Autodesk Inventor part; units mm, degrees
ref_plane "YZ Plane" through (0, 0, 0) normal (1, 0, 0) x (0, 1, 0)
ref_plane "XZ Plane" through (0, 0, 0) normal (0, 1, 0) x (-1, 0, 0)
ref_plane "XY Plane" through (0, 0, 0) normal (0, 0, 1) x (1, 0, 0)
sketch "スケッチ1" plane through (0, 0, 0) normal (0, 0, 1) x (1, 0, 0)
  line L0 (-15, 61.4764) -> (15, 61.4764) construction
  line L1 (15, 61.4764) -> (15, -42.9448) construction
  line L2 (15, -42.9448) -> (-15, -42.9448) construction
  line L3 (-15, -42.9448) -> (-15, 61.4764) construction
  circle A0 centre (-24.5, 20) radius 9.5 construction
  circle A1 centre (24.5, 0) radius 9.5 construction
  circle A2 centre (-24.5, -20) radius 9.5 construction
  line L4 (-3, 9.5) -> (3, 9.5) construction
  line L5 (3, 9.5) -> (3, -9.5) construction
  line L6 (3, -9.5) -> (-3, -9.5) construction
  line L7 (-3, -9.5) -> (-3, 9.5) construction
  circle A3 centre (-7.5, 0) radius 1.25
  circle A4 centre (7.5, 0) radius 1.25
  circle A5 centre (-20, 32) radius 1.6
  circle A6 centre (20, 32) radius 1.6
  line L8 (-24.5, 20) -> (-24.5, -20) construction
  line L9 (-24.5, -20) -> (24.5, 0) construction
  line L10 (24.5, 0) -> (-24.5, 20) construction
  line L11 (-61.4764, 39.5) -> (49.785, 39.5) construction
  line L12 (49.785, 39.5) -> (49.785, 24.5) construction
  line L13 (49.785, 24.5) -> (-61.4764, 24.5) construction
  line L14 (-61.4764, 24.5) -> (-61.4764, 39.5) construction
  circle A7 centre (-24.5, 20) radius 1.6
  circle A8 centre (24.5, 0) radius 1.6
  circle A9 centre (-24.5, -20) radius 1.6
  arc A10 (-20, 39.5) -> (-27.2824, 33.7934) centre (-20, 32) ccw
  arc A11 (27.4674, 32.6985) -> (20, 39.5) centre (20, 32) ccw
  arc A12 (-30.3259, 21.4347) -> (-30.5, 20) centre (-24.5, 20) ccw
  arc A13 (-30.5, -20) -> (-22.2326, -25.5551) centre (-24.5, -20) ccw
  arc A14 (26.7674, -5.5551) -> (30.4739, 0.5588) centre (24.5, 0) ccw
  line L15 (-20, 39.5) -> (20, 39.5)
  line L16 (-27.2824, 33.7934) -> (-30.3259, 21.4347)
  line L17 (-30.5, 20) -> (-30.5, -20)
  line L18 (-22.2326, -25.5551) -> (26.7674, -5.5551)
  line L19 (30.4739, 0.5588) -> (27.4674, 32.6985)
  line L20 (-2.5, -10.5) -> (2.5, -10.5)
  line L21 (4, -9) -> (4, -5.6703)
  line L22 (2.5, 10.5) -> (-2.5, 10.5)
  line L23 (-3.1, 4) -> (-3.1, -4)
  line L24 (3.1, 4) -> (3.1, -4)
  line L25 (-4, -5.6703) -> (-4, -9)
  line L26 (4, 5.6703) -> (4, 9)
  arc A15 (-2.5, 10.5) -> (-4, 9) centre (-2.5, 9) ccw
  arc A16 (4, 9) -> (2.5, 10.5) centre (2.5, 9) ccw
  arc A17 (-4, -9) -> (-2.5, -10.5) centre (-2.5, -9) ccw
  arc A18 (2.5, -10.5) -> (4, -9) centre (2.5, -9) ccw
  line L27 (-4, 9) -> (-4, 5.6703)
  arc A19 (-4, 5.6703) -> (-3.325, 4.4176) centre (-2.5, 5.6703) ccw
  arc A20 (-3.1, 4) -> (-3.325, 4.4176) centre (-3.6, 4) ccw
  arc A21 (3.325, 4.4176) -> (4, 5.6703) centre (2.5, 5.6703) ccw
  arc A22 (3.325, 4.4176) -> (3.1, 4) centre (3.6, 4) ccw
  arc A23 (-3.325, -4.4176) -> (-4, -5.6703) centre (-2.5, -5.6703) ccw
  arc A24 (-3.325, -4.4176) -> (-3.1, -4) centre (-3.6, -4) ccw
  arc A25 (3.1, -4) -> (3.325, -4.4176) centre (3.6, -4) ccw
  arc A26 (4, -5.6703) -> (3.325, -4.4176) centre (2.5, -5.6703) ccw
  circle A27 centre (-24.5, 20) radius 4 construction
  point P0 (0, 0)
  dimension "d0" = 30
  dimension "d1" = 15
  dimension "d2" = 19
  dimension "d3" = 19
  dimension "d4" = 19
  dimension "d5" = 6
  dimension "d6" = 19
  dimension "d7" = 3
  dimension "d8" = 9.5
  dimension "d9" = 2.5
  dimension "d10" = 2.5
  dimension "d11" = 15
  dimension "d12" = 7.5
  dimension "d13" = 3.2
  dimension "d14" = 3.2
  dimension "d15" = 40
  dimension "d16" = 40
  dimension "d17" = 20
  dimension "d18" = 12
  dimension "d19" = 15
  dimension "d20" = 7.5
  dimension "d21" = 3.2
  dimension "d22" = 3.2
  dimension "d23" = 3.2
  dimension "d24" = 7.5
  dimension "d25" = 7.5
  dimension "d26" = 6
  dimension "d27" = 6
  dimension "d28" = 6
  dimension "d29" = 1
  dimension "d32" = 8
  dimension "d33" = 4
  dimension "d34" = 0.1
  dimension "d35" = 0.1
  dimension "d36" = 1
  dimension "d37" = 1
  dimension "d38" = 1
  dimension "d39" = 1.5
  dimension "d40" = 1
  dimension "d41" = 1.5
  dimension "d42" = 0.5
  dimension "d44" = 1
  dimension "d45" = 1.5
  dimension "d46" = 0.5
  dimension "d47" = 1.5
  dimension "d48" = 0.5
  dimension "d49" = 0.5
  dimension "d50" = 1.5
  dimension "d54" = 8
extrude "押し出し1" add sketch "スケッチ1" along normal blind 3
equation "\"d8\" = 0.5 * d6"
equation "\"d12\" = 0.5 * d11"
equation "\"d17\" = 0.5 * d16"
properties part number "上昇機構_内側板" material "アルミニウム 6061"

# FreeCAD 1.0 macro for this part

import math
import FreeCAD as App
import Part
import Sketcher
from FreeCAD import Vector
Q = App.Units.Quantity

doc = App.newDocument("Part")
body = doc.addObject("PartDesign::Body", "Body")

sketch1 = body.newObject("Sketcher::SketchObject", "Sketch")
sketch1.AttachmentSupport = (doc.getObject("XY_Plane"), [""])
sketch1.MapMode = "FlatFace"
sketch1.addGeometry([
    Part.LineSegment(Vector(20, 39.5, 0), Vector(-20, 39.5, 0)),
    Part.ArcOfCircle(Part.Circle(Vector(-20, 32, 0), Vector(0, 0, 1), 7.5), math.radians(90), math.radians(166.165346)),
    Part.LineSegment(Vector(-27.2824, 33.7934, 0), Vector(-30.3259, 21.4347, 0)),
    Part.ArcOfCircle(Part.Circle(Vector(-24.497036, 19.999457, 0), Vector(0, 0, 1), 6.002964), math.radians(166.167221), math.radians(179.994821)),
    Part.LineSegment(Vector(-30.5, 20, 0), Vector(-30.5, -20, 0)),
    Part.ArcOfCircle(Part.Circle(Vector(-24.5, -20, 0), Vector(0, 0, 1), 6), math.radians(180), math.radians(292.203587)),
    Part.LineSegment(Vector(-22.2326, -25.5551, 0), Vector(26.7674, -5.5551, 0)),
    Part.ArcOfCircle(Part.Circle(Vector(24.5, 0, 0), Vector(0, 0, 1), 6.00002), math.radians(-67.796413), math.radians(5.343911)),
    Part.LineSegment(Vector(30.4739, 0.5588, 0), Vector(27.4674, 32.6985, 0)),
    Part.ArcOfCircle(Part.Circle(Vector(20, 32, 0), Vector(0, 0, 1), 7.499998), math.radians(5.343893), math.radians(90)),
    Part.Circle(Vector(-24.5, -20, 0), Vector(0, 0, 1), 1.6),
    Part.Circle(Vector(-7.5, 0, 0), Vector(0, 0, 1), 1.25),
    Part.LineSegment(Vector(2.5, -10.5, 0), Vector(-2.5, -10.5, 0)),
    Part.ArcOfCircle(Part.Circle(Vector(-2.5, -9, 0), Vector(0, 0, 1), 1.5), math.radians(180), math.radians(270)),
    Part.LineSegment(Vector(-4, -9, 0), Vector(-4, -5.6703, 0)),
    Part.ArcOfCircle(Part.Circle(Vector(-2.5, -5.6703, 0), Vector(0, 0, 1), 1.499961), math.radians(123.368), math.radians(180)),
    Part.ArcOfCircle(Part.Circle(Vector(-3.6, -4, 0), Vector(0, 0, 1), 0.500015), math.radians(-56.634101), math.radians(0)),
    Part.LineSegment(Vector(-3.1, -4, 0), Vector(-3.1, 4, 0)),
    Part.ArcOfCircle(Part.Circle(Vector(-3.6, 4, 0), Vector(0, 0, 1), 0.5), math.radians(0), math.radians(56.634101)),
    Part.ArcOfCircle(Part.Circle(Vector(-2.5, 5.6703, 0), Vector(0, 0, 1), 1.5), math.radians(180), math.radians(236.632)),
    Part.LineSegment(Vector(-4, 5.6703, 0), Vector(-4, 9, 0)),
    Part.ArcOfCircle(Part.Circle(Vector(-2.5, 9, 0), Vector(0, 0, 1), 1.5), math.radians(90), math.radians(180)),
    Part.LineSegment(Vector(-2.5, 10.5, 0), Vector(2.5, 10.5, 0)),
    Part.ArcOfCircle(Part.Circle(Vector(2.5, 9, 0), Vector(0, 0, 1), 1.5), math.radians(0), math.radians(90)),
    Part.LineSegment(Vector(4, 9, 0), Vector(4, 5.6703, 0)),
    Part.ArcOfCircle(Part.Circle(Vector(2.5, 5.6703, 0), Vector(0, 0, 1), 1.499961), math.radians(-56.632), math.radians(0)),
    Part.ArcOfCircle(Part.Circle(Vector(3.6, 4, 0), Vector(0, 0, 1), 0.500015), math.radians(123.365899), math.radians(180)),
    Part.LineSegment(Vector(3.1, 4, 0), Vector(3.1, -4, 0)),
    Part.ArcOfCircle(Part.Circle(Vector(3.6, -4, 0), Vector(0, 0, 1), 0.5), math.radians(180), math.radians(236.634101)),
    Part.ArcOfCircle(Part.Circle(Vector(2.5, -5.6703, 0), Vector(0, 0, 1), 1.5), math.radians(0), math.radians(56.632)),
    Part.LineSegment(Vector(4, -5.6703, 0), Vector(4, -9, 0)),
    Part.ArcOfCircle(Part.Circle(Vector(2.5, -9, 0), Vector(0, 0, 1), 1.5), math.radians(-90), math.radians(0)),
    Part.Circle(Vector(7.5, 0, 0), Vector(0, 0, 1), 1.25),
    Part.Circle(Vector(24.5, 0, 0), Vector(0, 0, 1), 1.6),
    Part.Circle(Vector(-24.5, 20, 0), Vector(0, 0, 1), 1.6),
    Part.Circle(Vector(-20, 32, 0), Vector(0, 0, 1), 1.6),
    Part.Circle(Vector(20, 32, 0), Vector(0, 0, 1), 1.6),
], False)
sketch1.addConstraint([
    Sketcher.Constraint("Tangent", 0, 2, 1, 1),
    Sketcher.Constraint("Tangent", 1, 2, 2, 1),
    Sketcher.Constraint("Tangent", 2, 2, 3, 1),
    Sketcher.Constraint("Tangent", 3, 2, 4, 1),
    Sketcher.Constraint("Tangent", 4, 2, 5, 1),
    Sketcher.Constraint("Tangent", 5, 2, 6, 1),
    Sketcher.Constraint("Tangent", 6, 2, 7, 1),
    Sketcher.Constraint("Tangent", 7, 2, 8, 1),
    Sketcher.Constraint("Tangent", 8, 2, 9, 1),
    Sketcher.Constraint("Tangent", 9, 2, 0, 1),
    Sketcher.Constraint("Tangent", 12, 2, 13, 2),
    Sketcher.Constraint("Tangent", 13, 1, 14, 1),
    Sketcher.Constraint("Tangent", 14, 2, 15, 2),
    Sketcher.Constraint("Tangent", 15, 1, 16, 1),
    Sketcher.Constraint("Tangent", 16, 2, 17, 1),
    Sketcher.Constraint("Tangent", 17, 2, 18, 1),
    Sketcher.Constraint("Tangent", 18, 2, 19, 2),
    Sketcher.Constraint("Tangent", 19, 1, 20, 1),
    Sketcher.Constraint("Tangent", 20, 2, 21, 2),
    Sketcher.Constraint("Tangent", 21, 1, 22, 1),
    Sketcher.Constraint("Tangent", 22, 2, 23, 2),
    Sketcher.Constraint("Tangent", 23, 1, 24, 1),
    Sketcher.Constraint("Tangent", 24, 2, 25, 2),
    Sketcher.Constraint("Tangent", 25, 1, 26, 1),
    Sketcher.Constraint("Tangent", 26, 2, 27, 1),
    Sketcher.Constraint("Tangent", 27, 2, 28, 1),
    Sketcher.Constraint("Tangent", 28, 2, 29, 2),
    Sketcher.Constraint("Tangent", 29, 1, 30, 1),
    Sketcher.Constraint("Tangent", 30, 2, 31, 2),
    Sketcher.Constraint("Tangent", 31, 1, 12, 1),
    Sketcher.Constraint("Horizontal", 0),
    Sketcher.Constraint("Vertical", 4),
    Sketcher.Constraint("Horizontal", 12),
    Sketcher.Constraint("Vertical", 14),
    Sketcher.Constraint("Vertical", 17),
    Sketcher.Constraint("Vertical", 20),
    Sketcher.Constraint("Horizontal", 22),
    Sketcher.Constraint("Vertical", 24),
    Sketcher.Constraint("Vertical", 27),
    Sketcher.Constraint("Vertical", 30),
    Sketcher.Constraint("Coincident", 10, 3, 5, 3),
    Sketcher.Constraint("Coincident", 33, 3, 7, 3),
    Sketcher.Constraint("Coincident", 35, 3, 1, 3),
    Sketcher.Constraint("Coincident", 36, 3, 9, 3),
    Sketcher.Constraint("Equal", 5, 7),
    Sketcher.Constraint("Equal", 1, 9),
    Sketcher.Constraint("Equal", 13, 15),
    Sketcher.Constraint("Equal", 16, 18),
    Sketcher.Constraint("Equal", 15, 19),
    Sketcher.Constraint("Equal", 19, 21),
    Sketcher.Constraint("Equal", 21, 23),
    Sketcher.Constraint("Equal", 23, 25),
    Sketcher.Constraint("Equal", 18, 26),
    Sketcher.Constraint("Equal", 26, 28),
    Sketcher.Constraint("Equal", 25, 29),
    Sketcher.Constraint("Equal", 29, 31),
    Sketcher.Constraint("Equal", 11, 32),
    Sketcher.Constraint("Equal", 10, 33),
    Sketcher.Constraint("Equal", 33, 34),
    Sketcher.Constraint("Equal", 34, 35),
    Sketcher.Constraint("Equal", 35, 36),
    Sketcher.Constraint("Symmetric", 13, 3, 23, 3, -1, 1),
    Sketcher.Constraint("Symmetric", 16, 3, 26, 3, -1, 1),
    Sketcher.Constraint("Symmetric", 19, 3, 29, 3, -1, 1),
    Sketcher.Constraint("Symmetric", 11, 3, 32, 3, -1, 1),
    Sketcher.Constraint("Symmetric", 19, 3, 25, 3, -2),
    Sketcher.Constraint("Symmetric", 5, 3, 34, 3, -1),
    Sketcher.Constraint("PointOnObject", 7, 3, -1),
    Sketcher.Constraint("PointOnObject", 11, 3, -1),
    Sketcher.Constraint("Horizontal", 34, 3, 3, 2),
    Sketcher.Constraint("Equal", 0, 4),
    Sketcher.Constraint("Radius", 5, Q("6 mm")),
    Sketcher.Constraint("Diameter", 10, Q("3.2 mm")),
    Sketcher.Constraint("Diameter", 11, Q("2.5 mm")),
    Sketcher.Constraint("Radius", 1, Q("7.5 mm")),
    Sketcher.Constraint("Radius", 13, Q("1.5 mm")),
    Sketcher.Constraint("Radius", 16, Q("0.5 mm")),
    Sketcher.Constraint("DistanceX", 0, 2, 0, 1, Q("40 mm")),
    Sketcher.Constraint("DistanceY", 17, 1, 17, 2, Q("8 mm")),
    Sketcher.Constraint("DistanceX", 1, 3, -1, 1, Q("20 mm")),
    Sketcher.Constraint("DistanceX", 13, 1, -1, 1, Q("4 mm")),
    Sketcher.Constraint("DistanceY", 34, 3, 1, 3, Q("12 mm")),
    Sketcher.Constraint("DistanceX", 11, 3, -1, 1, Q("7.5 mm")),
    Sketcher.Constraint("DistanceY", 13, 3, -1, 1, Q("9 mm")),
    Sketcher.Constraint("Radius", 3, Q("6.003 mm")),
    Sketcher.Constraint("DistanceX", 5, 3, 7, 3, Q("49 mm")),
    Sketcher.Constraint("DistanceX", 5, 3, 11, 3, Q("17 mm")),
    Sketcher.Constraint("DistanceX", 16, 3, -1, 1, Q("3.6 mm")),
])
pad1 = body.newObject("PartDesign::Pad", "Pad")
pad1.Profile = sketch1
pad1.Length = 3

doc.recompute()
